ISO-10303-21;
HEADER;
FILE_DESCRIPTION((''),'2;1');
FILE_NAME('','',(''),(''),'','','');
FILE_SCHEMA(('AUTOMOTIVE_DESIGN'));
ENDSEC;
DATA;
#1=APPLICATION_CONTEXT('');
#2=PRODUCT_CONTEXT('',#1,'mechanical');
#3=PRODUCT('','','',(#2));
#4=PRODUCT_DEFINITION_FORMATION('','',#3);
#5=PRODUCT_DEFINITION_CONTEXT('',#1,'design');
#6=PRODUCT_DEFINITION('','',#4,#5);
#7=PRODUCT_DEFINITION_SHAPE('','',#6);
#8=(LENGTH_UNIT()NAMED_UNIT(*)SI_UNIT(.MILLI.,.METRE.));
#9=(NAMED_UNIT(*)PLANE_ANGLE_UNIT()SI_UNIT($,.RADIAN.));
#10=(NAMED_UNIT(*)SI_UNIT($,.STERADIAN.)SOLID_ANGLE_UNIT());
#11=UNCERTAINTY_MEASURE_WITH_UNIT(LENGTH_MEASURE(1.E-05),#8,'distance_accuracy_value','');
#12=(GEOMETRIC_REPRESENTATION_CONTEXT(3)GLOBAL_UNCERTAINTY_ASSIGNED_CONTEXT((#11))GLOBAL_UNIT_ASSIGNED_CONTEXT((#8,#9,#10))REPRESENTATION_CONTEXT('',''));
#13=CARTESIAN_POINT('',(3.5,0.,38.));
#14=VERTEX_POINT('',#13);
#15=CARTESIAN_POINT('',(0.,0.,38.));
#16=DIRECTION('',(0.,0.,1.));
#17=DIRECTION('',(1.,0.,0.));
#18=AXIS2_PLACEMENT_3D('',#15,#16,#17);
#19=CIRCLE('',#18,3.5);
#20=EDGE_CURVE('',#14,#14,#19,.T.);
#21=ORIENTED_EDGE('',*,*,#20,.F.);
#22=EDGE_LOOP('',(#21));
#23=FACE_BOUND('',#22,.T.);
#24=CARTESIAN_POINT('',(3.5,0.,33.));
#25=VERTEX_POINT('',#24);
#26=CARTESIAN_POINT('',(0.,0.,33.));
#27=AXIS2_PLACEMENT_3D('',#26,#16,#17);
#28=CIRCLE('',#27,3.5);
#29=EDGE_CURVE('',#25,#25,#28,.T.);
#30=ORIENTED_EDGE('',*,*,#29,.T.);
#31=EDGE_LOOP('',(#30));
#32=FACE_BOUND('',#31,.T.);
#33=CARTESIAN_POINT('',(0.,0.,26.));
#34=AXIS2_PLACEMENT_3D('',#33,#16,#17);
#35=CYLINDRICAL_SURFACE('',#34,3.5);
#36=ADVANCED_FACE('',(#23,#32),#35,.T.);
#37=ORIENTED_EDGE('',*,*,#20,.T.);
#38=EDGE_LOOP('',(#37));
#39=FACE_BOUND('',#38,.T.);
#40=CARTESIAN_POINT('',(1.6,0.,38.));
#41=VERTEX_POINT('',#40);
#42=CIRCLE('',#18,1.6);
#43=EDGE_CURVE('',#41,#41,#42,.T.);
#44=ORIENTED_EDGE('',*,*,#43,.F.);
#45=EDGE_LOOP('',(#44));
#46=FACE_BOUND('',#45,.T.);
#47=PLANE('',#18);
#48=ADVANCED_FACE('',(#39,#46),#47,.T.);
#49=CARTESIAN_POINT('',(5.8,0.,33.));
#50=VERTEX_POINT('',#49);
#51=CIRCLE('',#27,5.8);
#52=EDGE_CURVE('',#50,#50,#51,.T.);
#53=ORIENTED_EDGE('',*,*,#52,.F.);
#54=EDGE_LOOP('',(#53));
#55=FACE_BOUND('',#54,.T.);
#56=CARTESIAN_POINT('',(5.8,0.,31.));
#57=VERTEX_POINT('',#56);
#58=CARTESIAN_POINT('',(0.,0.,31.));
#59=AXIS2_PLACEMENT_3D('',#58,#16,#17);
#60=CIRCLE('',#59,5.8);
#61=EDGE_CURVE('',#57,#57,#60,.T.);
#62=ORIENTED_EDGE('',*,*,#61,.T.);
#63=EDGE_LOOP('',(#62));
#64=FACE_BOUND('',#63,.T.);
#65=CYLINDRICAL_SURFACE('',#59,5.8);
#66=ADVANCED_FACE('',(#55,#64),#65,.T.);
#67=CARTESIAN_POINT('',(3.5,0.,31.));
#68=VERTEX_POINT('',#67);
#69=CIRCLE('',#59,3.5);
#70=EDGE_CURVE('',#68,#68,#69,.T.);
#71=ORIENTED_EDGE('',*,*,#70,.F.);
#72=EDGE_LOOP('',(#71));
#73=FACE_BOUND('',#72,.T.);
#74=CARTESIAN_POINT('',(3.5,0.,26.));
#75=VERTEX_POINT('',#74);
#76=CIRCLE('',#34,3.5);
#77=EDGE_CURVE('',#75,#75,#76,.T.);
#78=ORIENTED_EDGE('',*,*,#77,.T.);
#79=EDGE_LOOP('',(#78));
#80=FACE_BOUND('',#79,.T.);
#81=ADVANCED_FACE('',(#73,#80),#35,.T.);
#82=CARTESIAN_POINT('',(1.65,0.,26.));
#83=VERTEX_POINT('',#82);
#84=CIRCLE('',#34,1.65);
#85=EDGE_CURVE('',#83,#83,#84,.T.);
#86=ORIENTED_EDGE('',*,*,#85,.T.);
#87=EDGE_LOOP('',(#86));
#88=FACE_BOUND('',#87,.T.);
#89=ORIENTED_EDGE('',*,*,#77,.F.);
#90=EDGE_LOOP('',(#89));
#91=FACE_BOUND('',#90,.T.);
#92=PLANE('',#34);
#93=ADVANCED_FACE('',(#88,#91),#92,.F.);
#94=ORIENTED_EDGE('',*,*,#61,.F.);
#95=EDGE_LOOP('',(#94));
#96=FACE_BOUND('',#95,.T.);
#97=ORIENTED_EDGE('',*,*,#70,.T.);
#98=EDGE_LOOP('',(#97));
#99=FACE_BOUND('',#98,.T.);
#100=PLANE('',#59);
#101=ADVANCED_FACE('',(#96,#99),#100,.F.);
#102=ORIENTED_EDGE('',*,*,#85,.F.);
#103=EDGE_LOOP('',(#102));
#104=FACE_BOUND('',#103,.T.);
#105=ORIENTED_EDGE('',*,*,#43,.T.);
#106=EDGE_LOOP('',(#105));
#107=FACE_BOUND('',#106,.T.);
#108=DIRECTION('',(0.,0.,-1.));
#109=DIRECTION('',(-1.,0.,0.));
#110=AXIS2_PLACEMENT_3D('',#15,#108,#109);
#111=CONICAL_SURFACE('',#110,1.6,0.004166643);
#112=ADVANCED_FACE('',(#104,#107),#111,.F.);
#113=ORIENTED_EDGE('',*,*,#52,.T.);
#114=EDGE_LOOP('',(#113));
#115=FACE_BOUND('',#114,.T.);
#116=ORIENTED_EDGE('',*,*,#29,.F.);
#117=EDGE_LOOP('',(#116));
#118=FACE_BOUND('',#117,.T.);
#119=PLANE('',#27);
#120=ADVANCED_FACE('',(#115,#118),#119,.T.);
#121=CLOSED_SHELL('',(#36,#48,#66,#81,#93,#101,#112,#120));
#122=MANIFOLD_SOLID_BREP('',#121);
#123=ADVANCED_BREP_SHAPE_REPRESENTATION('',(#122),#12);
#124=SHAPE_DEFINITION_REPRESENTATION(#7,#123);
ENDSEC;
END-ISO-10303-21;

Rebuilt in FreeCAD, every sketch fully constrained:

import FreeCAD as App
import Part
import Sketcher
from FreeCAD import Vector
Q = App.Units.Quantity

doc = App.newDocument("Part")
params = doc.addObject("Spreadsheet::Sheet", "Params")
for row, (alias, value) in enumerate([
    ("sketch1_diameter", "11.6 mm"),
    ("pad1_length", "2 mm"),
    ("sketch2_diameter", "7 mm"),
    ("pad2_length", "5 mm"),
    ("pad2_length2", "7 mm"),
    ("sketch3_diameter", "3.2 mm"),
    ("sketch4_diameter", "3.3 mm"),
], start=1):
    params.set(f"A{row}", alias)
    params.set(f"B{row}", "=" + value)
    params.setAlias(f"B{row}", alias)

body = doc.addObject("PartDesign::Body", "Body")

sketch1 = body.newObject("Sketcher::SketchObject", "Sketch")
sketch1.AttachmentSupport = (doc.getObject("XY_Plane"), [""])
sketch1.MapMode = "FlatFace"
sketch1.AttachmentOffset = App.Placement(Vector(0, 0, 33), App.Rotation())
sketch1.addGeometry(Part.Circle(Vector(0, 0, 0), Vector(0, 0, 1), 5.8), False)
sketch1.addConstraint(Sketcher.Constraint("Coincident", 0, 3, -1, 1))
sketch1.addConstraint(Sketcher.Constraint("Diameter", 0, Q("11.6 mm")))
sketch1.setExpression("Constraints[1]", "Params.sketch1_diameter")
pad1 = body.newObject("PartDesign::Pad", "Pad")
pad1.Profile = sketch1
pad1.setExpression("Length", "Params.pad1_length")
pad1.Reversed = True

sketch2 = body.newObject("Sketcher::SketchObject", "Sketch001")
sketch2.AttachmentSupport = (doc.getObject("XY_Plane"), [""])
sketch2.MapMode = "FlatFace"
sketch2.AttachmentOffset = App.Placement(Vector(0, 0, 33), App.Rotation())
sketch2.addGeometry(Part.Circle(Vector(0, 0, 0), Vector(0, 0, 1), 3.5), False)
sketch2.addConstraint(Sketcher.Constraint("Coincident", 0, 3, -1, 1))
sketch2.addConstraint(Sketcher.Constraint("Diameter", 0, Q("7 mm")))
sketch2.setExpression("Constraints[1]", "Params.sketch2_diameter")
pad2 = body.newObject("PartDesign::Pad", "Pad001")
pad2.Profile = sketch2
pad2.Type = "TwoLengths"
pad2.setExpression("Length", "Params.pad2_length")
pad2.setExpression("Length2", "Params.pad2_length2")

sketch3 = body.newObject("Sketcher::SketchObject", "Sketch002")
sketch3.AttachmentSupport = (doc.getObject("XY_Plane"), [""])
sketch3.MapMode = "FlatFace"
sketch3.AttachmentOffset = App.Placement(Vector(0, 0, 38), App.Rotation())
sketch3.addGeometry(Part.Circle(Vector(0, 0, 0), Vector(0, 0, 1), 1.6), False)
sketch3.addConstraint(Sketcher.Constraint("Coincident", 0, 3, -1, 1))
sketch3.addConstraint(Sketcher.Constraint("Diameter", 0, Q("3.2 mm")))
sketch3.setExpression("Constraints[1]", "Params.sketch3_diameter")

sketch4 = body.newObject("Sketcher::SketchObject", "Sketch003")
sketch4.AttachmentSupport = (doc.getObject("XY_Plane"), [""])
sketch4.MapMode = "FlatFace"
sketch4.AttachmentOffset = App.Placement(Vector(0, 0, 26), App.Rotation())
sketch4.addGeometry(Part.Circle(Vector(0, 0, 0), Vector(0, 0, 1), 1.65), False)
sketch4.addConstraint(Sketcher.Constraint("Coincident", 0, 3, -1, 1))
sketch4.addConstraint(Sketcher.Constraint("Diameter", 0, Q("3.3 mm")))
sketch4.setExpression("Constraints[1]", "Params.sketch4_diameter")

subtractiveloft = body.newObject("PartDesign::SubtractiveLoft", "SubtractiveLoft")
subtractiveloft.Profile = sketch3
subtractiveloft.Sections = [sketch4]

doc.recompute()
